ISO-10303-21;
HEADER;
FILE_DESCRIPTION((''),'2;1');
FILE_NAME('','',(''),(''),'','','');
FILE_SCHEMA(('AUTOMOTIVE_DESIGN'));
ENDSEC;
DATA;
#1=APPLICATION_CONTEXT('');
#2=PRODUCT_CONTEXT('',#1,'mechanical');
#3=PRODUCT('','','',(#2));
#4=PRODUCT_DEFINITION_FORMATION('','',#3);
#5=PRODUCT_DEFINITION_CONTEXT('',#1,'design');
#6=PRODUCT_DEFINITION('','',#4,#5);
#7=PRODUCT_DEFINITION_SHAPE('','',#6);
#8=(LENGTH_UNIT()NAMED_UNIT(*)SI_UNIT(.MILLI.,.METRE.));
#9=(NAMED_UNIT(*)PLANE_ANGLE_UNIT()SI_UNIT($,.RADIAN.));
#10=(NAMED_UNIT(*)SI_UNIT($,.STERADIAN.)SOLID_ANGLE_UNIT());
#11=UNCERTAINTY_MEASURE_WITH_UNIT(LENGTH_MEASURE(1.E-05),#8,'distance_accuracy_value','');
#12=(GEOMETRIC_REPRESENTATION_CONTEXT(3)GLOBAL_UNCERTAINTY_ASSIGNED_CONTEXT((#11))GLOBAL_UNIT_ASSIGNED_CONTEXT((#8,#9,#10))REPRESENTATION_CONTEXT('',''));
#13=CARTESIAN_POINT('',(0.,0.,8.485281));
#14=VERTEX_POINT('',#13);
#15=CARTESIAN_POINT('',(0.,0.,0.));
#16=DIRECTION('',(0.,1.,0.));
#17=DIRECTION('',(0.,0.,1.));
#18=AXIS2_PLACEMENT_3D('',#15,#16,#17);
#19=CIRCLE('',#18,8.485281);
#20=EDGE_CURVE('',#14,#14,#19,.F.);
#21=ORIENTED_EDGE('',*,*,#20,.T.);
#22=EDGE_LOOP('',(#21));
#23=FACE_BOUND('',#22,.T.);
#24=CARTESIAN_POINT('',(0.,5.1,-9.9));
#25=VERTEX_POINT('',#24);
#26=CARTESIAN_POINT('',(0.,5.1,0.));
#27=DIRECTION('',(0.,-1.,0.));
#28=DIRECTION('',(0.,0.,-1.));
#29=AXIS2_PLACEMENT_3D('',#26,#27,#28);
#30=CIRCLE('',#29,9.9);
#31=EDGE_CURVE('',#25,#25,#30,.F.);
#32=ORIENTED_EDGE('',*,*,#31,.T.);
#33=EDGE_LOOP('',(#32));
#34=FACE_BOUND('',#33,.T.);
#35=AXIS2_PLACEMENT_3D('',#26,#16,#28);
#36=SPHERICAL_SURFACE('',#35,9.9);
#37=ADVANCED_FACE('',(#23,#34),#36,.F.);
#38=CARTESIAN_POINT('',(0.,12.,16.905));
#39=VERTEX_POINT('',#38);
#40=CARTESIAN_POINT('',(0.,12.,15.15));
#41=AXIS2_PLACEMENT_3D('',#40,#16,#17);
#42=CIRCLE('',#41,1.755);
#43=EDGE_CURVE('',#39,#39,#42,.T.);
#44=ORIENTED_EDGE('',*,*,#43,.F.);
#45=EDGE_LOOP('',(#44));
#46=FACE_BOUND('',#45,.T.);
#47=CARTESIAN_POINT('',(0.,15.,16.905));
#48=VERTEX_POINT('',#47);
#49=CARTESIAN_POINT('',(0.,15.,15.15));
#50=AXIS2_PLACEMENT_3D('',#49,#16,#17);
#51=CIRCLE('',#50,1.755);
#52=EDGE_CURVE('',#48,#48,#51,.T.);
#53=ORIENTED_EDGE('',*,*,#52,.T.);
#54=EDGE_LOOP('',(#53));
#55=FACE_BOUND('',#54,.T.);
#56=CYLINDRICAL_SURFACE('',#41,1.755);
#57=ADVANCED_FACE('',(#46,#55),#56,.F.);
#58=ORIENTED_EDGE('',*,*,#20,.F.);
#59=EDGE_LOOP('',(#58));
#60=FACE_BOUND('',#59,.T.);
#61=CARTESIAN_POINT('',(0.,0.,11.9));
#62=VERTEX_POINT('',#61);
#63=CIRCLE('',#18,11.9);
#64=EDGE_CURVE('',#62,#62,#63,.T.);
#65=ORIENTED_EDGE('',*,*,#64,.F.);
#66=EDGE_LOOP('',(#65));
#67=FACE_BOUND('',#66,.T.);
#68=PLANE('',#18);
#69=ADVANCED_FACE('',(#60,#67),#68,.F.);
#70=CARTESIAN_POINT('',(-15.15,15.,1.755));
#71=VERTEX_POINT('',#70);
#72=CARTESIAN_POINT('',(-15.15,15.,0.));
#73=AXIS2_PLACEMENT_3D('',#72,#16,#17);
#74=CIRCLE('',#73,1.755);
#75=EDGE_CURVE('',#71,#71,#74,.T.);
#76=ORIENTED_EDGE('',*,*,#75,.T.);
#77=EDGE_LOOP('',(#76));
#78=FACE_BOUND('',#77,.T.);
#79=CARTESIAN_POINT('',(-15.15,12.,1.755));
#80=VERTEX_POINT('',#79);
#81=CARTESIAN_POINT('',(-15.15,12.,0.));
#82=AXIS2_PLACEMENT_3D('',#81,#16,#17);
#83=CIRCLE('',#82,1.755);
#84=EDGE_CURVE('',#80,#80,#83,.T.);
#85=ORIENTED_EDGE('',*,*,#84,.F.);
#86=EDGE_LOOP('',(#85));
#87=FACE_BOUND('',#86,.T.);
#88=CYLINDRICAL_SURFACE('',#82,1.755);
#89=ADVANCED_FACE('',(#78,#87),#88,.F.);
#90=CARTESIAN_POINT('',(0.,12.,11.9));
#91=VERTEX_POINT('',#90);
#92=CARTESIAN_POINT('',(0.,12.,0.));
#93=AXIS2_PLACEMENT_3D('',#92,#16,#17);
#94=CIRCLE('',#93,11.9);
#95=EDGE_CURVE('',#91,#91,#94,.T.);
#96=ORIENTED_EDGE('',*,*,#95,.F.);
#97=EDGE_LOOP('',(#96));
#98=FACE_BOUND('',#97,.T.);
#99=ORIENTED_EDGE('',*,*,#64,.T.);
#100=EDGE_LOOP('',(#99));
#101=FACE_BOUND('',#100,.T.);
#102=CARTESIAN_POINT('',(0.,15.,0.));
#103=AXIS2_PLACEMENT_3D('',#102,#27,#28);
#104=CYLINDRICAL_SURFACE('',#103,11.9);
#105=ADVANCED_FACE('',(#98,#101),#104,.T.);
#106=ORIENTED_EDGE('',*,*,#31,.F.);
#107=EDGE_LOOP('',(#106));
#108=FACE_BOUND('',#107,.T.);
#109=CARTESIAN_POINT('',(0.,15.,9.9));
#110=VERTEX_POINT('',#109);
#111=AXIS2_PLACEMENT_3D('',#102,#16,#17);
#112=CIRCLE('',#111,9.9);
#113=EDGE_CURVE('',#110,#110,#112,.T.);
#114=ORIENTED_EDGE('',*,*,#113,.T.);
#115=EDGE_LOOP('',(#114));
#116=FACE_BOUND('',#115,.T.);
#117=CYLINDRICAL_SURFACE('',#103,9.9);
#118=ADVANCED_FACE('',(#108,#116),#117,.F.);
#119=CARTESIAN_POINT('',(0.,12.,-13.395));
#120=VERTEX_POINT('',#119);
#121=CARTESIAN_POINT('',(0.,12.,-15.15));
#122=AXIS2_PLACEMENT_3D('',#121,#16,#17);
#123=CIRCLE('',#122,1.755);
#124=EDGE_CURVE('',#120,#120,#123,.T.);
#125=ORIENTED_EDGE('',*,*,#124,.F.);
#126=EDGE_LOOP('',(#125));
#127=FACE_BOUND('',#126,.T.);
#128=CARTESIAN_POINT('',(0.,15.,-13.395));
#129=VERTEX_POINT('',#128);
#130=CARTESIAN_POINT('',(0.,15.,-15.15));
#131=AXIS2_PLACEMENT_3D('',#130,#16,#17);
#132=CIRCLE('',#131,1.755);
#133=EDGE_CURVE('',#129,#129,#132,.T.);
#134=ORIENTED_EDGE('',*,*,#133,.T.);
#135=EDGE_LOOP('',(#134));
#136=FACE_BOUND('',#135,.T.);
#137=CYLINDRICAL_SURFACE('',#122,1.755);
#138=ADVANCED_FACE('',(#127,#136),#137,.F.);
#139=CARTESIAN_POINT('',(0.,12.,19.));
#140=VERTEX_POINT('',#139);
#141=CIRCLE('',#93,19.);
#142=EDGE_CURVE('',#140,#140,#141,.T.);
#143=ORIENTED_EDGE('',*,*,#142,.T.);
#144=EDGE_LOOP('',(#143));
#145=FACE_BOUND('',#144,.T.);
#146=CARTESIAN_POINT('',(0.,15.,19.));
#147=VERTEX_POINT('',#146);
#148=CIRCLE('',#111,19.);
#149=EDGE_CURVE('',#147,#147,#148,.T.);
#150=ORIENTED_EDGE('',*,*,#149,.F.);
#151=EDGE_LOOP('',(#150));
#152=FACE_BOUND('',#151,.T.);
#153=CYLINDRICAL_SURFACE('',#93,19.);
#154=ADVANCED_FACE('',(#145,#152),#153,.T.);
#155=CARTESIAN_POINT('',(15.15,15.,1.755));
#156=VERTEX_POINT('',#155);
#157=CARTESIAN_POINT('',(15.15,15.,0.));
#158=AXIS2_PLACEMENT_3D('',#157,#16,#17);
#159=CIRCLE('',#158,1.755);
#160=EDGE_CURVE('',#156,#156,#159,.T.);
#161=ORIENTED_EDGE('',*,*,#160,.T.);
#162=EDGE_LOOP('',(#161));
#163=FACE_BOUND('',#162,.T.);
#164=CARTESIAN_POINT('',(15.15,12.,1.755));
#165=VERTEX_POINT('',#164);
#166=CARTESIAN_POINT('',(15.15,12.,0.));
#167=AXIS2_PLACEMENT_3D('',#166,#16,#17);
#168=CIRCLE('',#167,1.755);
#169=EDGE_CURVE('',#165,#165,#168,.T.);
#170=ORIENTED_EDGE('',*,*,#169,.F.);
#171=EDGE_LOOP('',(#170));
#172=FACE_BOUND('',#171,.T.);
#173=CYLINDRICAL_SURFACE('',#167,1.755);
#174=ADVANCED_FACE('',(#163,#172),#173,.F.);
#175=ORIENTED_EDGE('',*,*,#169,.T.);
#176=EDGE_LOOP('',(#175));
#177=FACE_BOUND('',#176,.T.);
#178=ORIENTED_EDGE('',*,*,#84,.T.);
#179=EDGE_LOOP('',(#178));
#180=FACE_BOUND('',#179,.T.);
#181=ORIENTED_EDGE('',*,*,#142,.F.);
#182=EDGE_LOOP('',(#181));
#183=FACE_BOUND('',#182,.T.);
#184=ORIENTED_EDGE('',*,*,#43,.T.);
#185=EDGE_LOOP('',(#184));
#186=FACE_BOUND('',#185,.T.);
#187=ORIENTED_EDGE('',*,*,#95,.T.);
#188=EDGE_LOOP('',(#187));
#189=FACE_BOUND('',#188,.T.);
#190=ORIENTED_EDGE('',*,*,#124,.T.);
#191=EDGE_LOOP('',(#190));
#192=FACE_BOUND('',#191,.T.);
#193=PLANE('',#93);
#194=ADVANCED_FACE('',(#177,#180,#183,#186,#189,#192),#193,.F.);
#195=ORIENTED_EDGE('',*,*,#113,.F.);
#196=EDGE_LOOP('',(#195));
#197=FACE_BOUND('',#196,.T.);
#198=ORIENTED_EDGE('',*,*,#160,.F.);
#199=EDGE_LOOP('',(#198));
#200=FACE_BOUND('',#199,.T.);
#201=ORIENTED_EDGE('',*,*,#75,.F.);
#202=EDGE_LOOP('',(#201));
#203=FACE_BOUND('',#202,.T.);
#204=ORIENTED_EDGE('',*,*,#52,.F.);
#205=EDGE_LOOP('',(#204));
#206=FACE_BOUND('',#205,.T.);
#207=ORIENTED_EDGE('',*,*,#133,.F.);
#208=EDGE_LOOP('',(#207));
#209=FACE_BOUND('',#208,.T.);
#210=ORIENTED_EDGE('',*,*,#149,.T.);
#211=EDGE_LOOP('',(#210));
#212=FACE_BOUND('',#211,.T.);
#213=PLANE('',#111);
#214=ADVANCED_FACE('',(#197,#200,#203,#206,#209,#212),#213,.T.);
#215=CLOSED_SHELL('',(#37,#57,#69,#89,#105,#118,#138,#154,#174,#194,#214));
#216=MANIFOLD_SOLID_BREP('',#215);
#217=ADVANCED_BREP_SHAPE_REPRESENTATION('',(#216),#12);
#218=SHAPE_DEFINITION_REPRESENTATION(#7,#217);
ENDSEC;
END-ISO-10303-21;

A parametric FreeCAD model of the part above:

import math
import FreeCAD as App
import Part
import Sketcher
from FreeCAD import Vector
Q = App.Units.Quantity

doc = App.newDocument("Part")
body = doc.addObject("PartDesign::Body", "Body")

# Sketch on XZ plane
sketch1 = body.newObject("Sketcher::SketchObject", "Sketch")
sketch1.AttachmentSupport = (doc.getObject("XZ_Plane"), [""])
sketch1.MapMode = "FlatFace"
sketch1.addGeometry([
    Part.Circle(Vector(0, 0, 0), Vector(0, 0, 1), 12),
    Part.Circle(Vector(0, 0, 0), Vector(0, 0, 1), 10),
], False)
sketch1.addConstraint([
    Sketcher.Constraint("Coincident", 0, 3, -1, 1),
    Sketcher.Constraint("Coincident", 1, 3, -1, 1),
    Sketcher.Constraint("Diameter", 0, Q("23.8 mm")),
    Sketcher.Constraint("Diameter", 1, Q("19.8 mm")),
])
pad1 = body.newObject("PartDesign::Pad", "Pad")
pad1.Profile = sketch1
pad1.Length = 15
pad1.Reversed = True

# Sketch on XZ plane
sketch2 = body.newObject("Sketcher::SketchObject", "Sketch001")
sketch2.AttachmentSupport = (doc.getObject("XZ_Plane"), [""])
sketch2.MapMode = "FlatFace"
sketch2.addGeometry(Part.Circle(Vector(0, 0, 0), Vector(0, 0, 1), 10), False)
sketch2.addConstraint([
    Sketcher.Constraint("Coincident", 0, 3, -1, 1),
    Sketcher.Constraint("Diameter", 0, Q("19.8 mm")),
])
pad2 = body.newObject("PartDesign::Pad", "Pad001")
pad2.Profile = sketch2
pad2.Length = 5.1
pad2.Reversed = True

# Sketch on YZ plane
sketch3 = body.newObject("Sketcher::SketchObject", "Sketch002")
sketch3.AttachmentSupport = (doc.getObject("YZ_Plane"), [""])
sketch3.MapMode = "FlatFace"
sketch3.addGeometry([
    Part.LineSegment(Vector(15, 0, 0), Vector(-5, 0, 0)),
    Part.ArcOfCircle(Part.Circle(Vector(5, 0, 0), Vector(0, 0, 1), 10), math.radians(180), math.radians(360)),
], False)
sketch3.addConstraint([
    Sketcher.Constraint("Coincident", 0, 1, 1, 2),
    Sketcher.Constraint("Coincident", 1, 1, 0, 2),
    Sketcher.Constraint("Horizontal", 0),
    Sketcher.Constraint("PointOnObject", 1, 3, -1),
    Sketcher.Constraint("PointOnObject", 0, 1, -1),
    Sketcher.Constraint("Radius", 1, Q("9.9 mm")),
    Sketcher.Constraint("DistanceX", -1, 1, 0, 1, Q("15 mm")),
])
groove = body.newObject("PartDesign::Groove", "Groove")
groove.Profile = sketch3
groove.ReferenceAxis = (sketch3, ["H_Axis"])
groove.Angle = 360

# Sketch on XZ plane
sketch4 = body.newObject("Sketcher::SketchObject", "Sketch003")
sketch4.AttachmentSupport = (doc.getObject("XZ_Plane"), [""])
sketch4.MapMode = "FlatFace"
sketch4.AttachmentOffset = App.Placement(Vector(0, 0, -12), App.Rotation())
sketch4.addGeometry([
    Part.Circle(Vector(0, 0, 0), Vector(0, 0, 1), 19),
    Part.Circle(Vector(0, 0, 0), Vector(0, 0, 1), 12),
], False)
sketch4.addConstraint([
    Sketcher.Constraint("Coincident", 0, 3, -1, 1),
    Sketcher.Constraint("Coincident", 1, 3, -1, 1),
    Sketcher.Constraint("Diameter", 0, Q("38 mm")),
    Sketcher.Constraint("Diameter", 1, Q("23.8 mm")),
])
pad3 = body.newObject("PartDesign::Pad", "Pad002")
pad3.Profile = sketch4
pad3.Length = 3
pad3.Reversed = True

# Sketch on XZ plane
sketch5 = body.newObject("Sketcher::SketchObject", "Sketch004")
sketch5.AttachmentSupport = (doc.getObject("XZ_Plane"), [""])
sketch5.MapMode = "FlatFace"
sketch5.AttachmentOffset = App.Placement(Vector(0, 0, -15), App.Rotation())
sketch5.addGeometry([
    Part.Circle(Vector(0, -15.2, 0), Vector(0, 0, 1), 1.8),
    Part.Circle(Vector(-15.2, 0, 0), Vector(0, 0, 1), 1.8),
    Part.Circle(Vector(0, 15.2, 0), Vector(0, 0, 1), 1.8),
    Part.Circle(Vector(15.2, 0, 0), Vector(0, 0, 1), 1.8),
], False)
sketch5.addConstraint([
    Sketcher.Constraint("Equal", 0, 1),
    Sketcher.Constraint("Equal", 1, 2),
    Sketcher.Constraint("Equal", 2, 3),
    Sketcher.Constraint("Symmetric", 0, 3, 2, 3, -1, 1),
    Sketcher.Constraint("Symmetric", 1, 3, 3, 3, -1, 1),
    Sketcher.Constraint("PointOnObject", 0, 3, -2),
    Sketcher.Constraint("PointOnObject", 1, 3, -1),
    Sketcher.Constraint("Diameter", 0, Q("3.51 mm")),
    Sketcher.Constraint("DistanceY", 0, 3, 2, 3, Q("30.3 mm")),
    Sketcher.Constraint("DistanceX", 1, 3, 3, 3, Q("30.3 mm")),
])
pocket1 = body.newObject("PartDesign::Pocket", "Pocket")
pocket1.Profile = sketch5
pocket1.Length = 3
pocket1.Reversed = True

doc.recompute()
